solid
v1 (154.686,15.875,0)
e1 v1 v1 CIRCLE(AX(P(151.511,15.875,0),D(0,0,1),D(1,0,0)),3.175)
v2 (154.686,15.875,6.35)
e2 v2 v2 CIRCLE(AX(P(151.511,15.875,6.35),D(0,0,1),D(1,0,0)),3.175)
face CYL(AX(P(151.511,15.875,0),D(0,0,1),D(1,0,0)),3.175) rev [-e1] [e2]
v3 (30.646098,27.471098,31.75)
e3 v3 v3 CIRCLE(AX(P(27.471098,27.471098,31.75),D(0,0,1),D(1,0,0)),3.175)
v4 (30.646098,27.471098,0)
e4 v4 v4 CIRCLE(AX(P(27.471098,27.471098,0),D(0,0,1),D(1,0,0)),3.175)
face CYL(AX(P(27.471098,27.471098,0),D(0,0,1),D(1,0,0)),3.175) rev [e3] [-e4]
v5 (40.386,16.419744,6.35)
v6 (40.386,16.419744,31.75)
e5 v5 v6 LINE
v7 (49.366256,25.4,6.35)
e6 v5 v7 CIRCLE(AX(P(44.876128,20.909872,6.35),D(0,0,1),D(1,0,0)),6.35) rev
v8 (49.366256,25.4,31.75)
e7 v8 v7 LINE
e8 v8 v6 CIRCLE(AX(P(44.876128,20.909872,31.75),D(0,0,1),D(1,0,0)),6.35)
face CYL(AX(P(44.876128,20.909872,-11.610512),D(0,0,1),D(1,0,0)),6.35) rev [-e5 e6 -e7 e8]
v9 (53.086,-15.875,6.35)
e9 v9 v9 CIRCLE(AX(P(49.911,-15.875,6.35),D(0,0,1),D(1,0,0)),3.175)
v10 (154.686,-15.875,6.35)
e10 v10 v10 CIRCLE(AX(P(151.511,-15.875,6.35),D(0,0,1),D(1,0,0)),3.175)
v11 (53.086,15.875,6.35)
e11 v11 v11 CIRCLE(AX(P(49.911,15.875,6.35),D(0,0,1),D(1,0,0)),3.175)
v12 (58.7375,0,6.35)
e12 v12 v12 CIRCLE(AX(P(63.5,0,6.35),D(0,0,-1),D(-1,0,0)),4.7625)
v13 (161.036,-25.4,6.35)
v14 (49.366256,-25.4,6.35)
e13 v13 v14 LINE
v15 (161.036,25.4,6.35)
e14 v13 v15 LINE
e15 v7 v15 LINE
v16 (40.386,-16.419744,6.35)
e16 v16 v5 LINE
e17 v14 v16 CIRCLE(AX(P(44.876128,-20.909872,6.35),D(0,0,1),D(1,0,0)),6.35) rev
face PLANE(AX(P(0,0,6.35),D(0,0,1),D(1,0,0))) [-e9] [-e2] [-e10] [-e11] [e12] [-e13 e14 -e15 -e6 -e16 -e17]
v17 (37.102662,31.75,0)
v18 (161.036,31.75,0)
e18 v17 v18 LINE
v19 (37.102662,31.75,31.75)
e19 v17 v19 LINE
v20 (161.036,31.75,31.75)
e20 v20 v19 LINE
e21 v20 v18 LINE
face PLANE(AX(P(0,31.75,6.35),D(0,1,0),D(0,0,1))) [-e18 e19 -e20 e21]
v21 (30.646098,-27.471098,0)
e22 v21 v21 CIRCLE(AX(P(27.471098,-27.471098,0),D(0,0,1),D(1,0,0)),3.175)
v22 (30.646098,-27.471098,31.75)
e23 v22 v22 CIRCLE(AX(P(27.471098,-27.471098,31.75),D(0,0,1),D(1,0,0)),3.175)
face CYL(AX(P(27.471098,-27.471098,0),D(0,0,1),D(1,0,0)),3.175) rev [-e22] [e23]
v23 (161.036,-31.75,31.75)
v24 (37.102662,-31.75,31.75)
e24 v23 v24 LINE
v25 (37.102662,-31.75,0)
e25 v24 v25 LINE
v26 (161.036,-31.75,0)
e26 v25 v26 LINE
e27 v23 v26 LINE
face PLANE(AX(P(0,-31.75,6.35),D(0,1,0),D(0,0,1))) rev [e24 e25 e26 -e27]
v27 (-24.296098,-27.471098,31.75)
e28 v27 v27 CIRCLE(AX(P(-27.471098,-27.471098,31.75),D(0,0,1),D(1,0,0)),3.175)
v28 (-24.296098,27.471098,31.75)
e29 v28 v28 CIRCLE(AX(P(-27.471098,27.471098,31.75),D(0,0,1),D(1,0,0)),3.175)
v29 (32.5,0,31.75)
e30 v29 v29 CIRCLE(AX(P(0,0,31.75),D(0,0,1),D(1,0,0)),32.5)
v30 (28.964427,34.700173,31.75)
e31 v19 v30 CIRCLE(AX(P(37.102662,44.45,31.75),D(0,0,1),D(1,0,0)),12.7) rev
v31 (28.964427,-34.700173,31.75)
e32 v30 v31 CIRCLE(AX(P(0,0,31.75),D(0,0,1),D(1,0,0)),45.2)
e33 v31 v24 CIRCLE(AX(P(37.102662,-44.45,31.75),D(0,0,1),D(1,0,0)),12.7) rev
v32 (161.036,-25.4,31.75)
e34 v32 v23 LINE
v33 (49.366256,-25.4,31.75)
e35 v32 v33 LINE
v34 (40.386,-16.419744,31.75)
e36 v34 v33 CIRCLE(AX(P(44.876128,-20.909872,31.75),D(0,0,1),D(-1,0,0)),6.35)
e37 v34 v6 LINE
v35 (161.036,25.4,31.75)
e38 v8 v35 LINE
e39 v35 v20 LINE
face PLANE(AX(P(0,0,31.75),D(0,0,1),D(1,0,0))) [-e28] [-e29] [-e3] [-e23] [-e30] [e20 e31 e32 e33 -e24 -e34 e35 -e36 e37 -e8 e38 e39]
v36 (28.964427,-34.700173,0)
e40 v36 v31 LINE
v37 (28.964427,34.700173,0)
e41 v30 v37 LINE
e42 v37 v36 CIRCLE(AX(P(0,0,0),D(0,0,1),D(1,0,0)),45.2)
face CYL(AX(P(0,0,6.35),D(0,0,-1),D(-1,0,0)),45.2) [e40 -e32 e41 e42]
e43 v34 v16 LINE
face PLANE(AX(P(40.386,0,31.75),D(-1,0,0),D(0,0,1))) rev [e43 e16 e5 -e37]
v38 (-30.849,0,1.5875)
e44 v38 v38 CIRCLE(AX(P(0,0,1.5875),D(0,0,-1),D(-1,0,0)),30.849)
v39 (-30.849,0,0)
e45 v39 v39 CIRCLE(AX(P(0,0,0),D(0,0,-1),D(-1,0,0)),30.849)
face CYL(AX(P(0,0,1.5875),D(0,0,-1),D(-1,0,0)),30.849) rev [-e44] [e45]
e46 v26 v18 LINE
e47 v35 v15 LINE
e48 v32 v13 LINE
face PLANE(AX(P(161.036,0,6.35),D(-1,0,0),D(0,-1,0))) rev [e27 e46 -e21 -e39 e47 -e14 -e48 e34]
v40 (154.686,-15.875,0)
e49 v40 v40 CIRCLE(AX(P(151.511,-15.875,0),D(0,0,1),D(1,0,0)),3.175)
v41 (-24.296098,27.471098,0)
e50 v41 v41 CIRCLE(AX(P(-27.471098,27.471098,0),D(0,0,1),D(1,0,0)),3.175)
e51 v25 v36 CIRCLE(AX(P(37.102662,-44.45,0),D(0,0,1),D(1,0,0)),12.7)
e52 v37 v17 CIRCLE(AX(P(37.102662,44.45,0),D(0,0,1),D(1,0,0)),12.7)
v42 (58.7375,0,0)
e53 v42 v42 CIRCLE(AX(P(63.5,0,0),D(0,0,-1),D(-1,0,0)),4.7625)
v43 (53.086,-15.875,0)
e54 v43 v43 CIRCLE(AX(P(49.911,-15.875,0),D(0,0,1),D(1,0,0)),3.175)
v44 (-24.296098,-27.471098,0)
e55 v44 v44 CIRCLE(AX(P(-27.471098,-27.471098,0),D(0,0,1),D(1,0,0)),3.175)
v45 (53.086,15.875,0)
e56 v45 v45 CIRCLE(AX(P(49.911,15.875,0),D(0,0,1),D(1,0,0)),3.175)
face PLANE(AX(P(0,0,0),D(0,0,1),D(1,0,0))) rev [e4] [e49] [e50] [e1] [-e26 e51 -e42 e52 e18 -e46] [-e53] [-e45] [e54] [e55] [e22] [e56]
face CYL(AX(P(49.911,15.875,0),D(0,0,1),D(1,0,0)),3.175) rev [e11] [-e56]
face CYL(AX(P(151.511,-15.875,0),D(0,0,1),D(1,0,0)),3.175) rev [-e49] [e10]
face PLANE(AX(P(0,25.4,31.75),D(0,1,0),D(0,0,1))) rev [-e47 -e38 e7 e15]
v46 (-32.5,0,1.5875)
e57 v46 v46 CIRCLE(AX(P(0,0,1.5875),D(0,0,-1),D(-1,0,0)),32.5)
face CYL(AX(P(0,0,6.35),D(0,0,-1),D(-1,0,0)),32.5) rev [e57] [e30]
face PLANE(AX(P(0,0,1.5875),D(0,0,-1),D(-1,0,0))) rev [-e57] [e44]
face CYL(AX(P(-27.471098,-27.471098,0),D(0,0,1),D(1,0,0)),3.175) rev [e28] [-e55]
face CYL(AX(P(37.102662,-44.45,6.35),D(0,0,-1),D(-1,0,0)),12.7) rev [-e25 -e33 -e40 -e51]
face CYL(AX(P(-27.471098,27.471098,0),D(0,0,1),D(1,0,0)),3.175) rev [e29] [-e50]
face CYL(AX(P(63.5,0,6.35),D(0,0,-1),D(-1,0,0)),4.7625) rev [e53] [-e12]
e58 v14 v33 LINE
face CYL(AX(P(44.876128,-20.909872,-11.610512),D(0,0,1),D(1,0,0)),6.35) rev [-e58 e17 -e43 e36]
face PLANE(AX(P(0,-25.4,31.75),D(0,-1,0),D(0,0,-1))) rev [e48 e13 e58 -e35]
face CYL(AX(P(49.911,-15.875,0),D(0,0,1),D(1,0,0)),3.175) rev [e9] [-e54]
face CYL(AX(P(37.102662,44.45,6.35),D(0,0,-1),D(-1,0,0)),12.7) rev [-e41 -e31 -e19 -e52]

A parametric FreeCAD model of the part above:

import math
import FreeCAD as App
import Part
import Sketcher
Q = App.Units.Quantity


def edges_at(feature, points):
    """Names of the edges that pass closest to the given points."""
    edges = feature.Shape.Edges
    near = lambda p: min(range(len(edges)), key=lambda i: edges[i].distToShape(Part.Vertex(*p))[0])
    return sorted({f"Edge{near(p) + 1}" for p in points})

doc = App.newDocument("Part")
params = doc.addObject("Spreadsheet::Sheet", "Params")
for row, (alias, value) in enumerate([
    ("sketch1_height", "2.5 in"),
    ("pad1_length", "0.25 in"),
    ("sketch2_height", "2 in"),
    ("sketch2_width", "4.75 in"),
    ("sketch2_height2", "0.25 in"),
    ("pad2_length", "1 in"),
    ("sketch3_diameter", "0.25 in"),
    ("sketch4_diameter", "0.5 in"),
    ("pocket2_length", "1 in"),
    ("sketch5_diameter", "0.375 in"),
    ("pocket3_length", "0.25 in"),
    ("fillet_radius", "0.5 in"),
    ("pad3_length", "0.0625 in"),
], start=1):
    params.set(f"A{row}", alias)
    params.set(f"B{row}", "=" + value)
    params.setAlias(f"B{row}", alias)

body = doc.addObject("PartDesign::Body", "Body")

# Sketch on XY plane
sketch1 = doc.addObject("Sketcher::SketchObject", "Sketch")
body.addObject(sketch1)
sketch1.AttachmentSupport = (doc.XY_Plane, [""])
sketch1.MapMode = "FlatFace"
sketch1.addGeometry([
    Part.LineSegment(App.Vector(161, 32, 0), App.Vector(32, 32, 0)),  # 0
    Part.ArcOfCircle(Part.Circle(App.Vector(0, 0, 0), App.Vector(0, 0, 1), 45), math.radians(45), math.radians(315)),  # 1
    Part.LineSegment(App.Vector(32, -32, 0), App.Vector(161, -32, 0)),  # 2
    Part.LineSegment(App.Vector(161, -32, 0), App.Vector(161, 32, 0)),  # 3
    Part.Circle(App.Vector(0, 0, 0), App.Vector(0, 0, 1), 32),  # 4
], False)
sketch1.addConstraint([
    Sketcher.Constraint("Coincident", 0, 2, 1, 1),
    Sketcher.Constraint("Coincident", 1, 2, 2, 1),
    Sketcher.Constraint("Coincident", 2, 2, 3, 1),
    Sketcher.Constraint("Coincident", 3, 2, 0, 1),
    Sketcher.Constraint("Horizontal", 0),
    Sketcher.Constraint("Horizontal", 2),
    Sketcher.Constraint("Vertical", 3),
    Sketcher.Constraint("Coincident", 1, 3, -1, 1),
    Sketcher.Constraint("Coincident", 4, 3, -1, 1),
    Sketcher.Constraint("Vertical", 0, 2, 1, 2),
    Sketcher.Constraint("DistanceY", 3, 1, 3, 2, Q("2.5 in")),
    Sketcher.Constraint("Diameter", 4, Q("65 mm")),
    Sketcher.Constraint("DistanceX", -1, 1, 2, 2, Q("6.34 in")),
    Sketcher.Constraint("Radius", 1, Q("45.2 mm")),
])
sketch1.setExpression("Constraints[10]", "Params.sketch1_height")
pad1 = doc.addObject("PartDesign::Pad", "Pad")
body.addObject(pad1)
pad1.Profile = sketch1
pad1.setExpression("Length", "Params.pad1_length")

# Sketch on XY plane
sketch2 = doc.addObject("Sketcher::SketchObject", "Sketch001")
body.addObject(sketch2)
sketch2.AttachmentSupport = (doc.XY_Plane, [""])
sketch2.MapMode = "FlatFace"
sketch2.AttachmentOffset = App.Placement(App.Vector(0, 0, 0.25 * 25.4), App.Rotation())
sketch2.addGeometry([
    Part.LineSegment(App.Vector(161, 32, 0), App.Vector(32, 32, 0)),  # 0
    Part.ArcOfCircle(Part.Circle(App.Vector(0, 0, 0), App.Vector(0, 0, 1), 45), math.radians(45), math.radians(315)),  # 1
    Part.LineSegment(App.Vector(32, -32, 0), App.Vector(161, -32, 0)),  # 2
    Part.LineSegment(App.Vector(161, -32, 0), App.Vector(161, -25, 0)),  # 3
    Part.LineSegment(App.Vector(161, -25, 0), App.Vector(40, -25, 0)),  # 4
    Part.LineSegment(App.Vector(40, -25, 0), App.Vector(40, 25, 0)),  # 5
    Part.LineSegment(App.Vector(40, 25, 0), App.Vector(161, 25, 0)),  # 6
    Part.LineSegment(App.Vector(161, 25, 0), App.Vector(161, 32, 0)),  # 7
    Part.Circle(App.Vector(0, 0, 0), App.Vector(0, 0, 1), 32),  # 8
], False)
sketch2.addConstraint([
    Sketcher.Constraint("Coincident", 0, 2, 1, 1),
    Sketcher.Constraint("Coincident", 1, 2, 2, 1),
    Sketcher.Constraint("Coincident", 2, 2, 3, 1),
    Sketcher.Constraint("Coincident", 3, 2, 4, 1),
    Sketcher.Constraint("Coincident", 4, 2, 5, 1),
    Sketcher.Constraint("Coincident", 5, 2, 6, 1),
    Sketcher.Constraint("Coincident", 6, 2, 7, 1),
    Sketcher.Constraint("Coincident", 7, 2, 0, 1),
    Sketcher.Constraint("Horizontal", 0),
    Sketcher.Constraint("Horizontal", 2),
    Sketcher.Constraint("Vertical", 3),
    Sketcher.Constraint("Horizontal", 4),
    Sketcher.Constraint("Vertical", 5),
    Sketcher.Constraint("Horizontal", 6),
    Sketcher.Constraint("Vertical", 7),
    Sketcher.Constraint("Coincident", 1, 3, -1, 1),
    Sketcher.Constraint("Coincident", 8, 3, -1, 1),
    Sketcher.Constraint("Symmetric", 3, 2, 6, 2, -1),
    Sketcher.Constraint("Vertical", 0, 2, 1, 2),
    Sketcher.Constraint("DistanceY", 5, 1, 5, 2, Q("2 in")),
    Sketcher.Constraint("DistanceX", 4, 2, 4, 1, Q("4.75 in")),
    Sketcher.Constraint("DistanceY", 3, 1, 3, 2, Q("0.25 in")),
    Sketcher.Constraint("Diameter", 8, Q("65 mm")),
    Sketcher.Constraint("DistanceX", -1, 1, 2, 2, Q("6.34 in")),
    Sketcher.Constraint("Radius", 1, Q("45.2 mm")),
])
sketch2.setExpression("Constraints[19]", "Params.sketch2_height")
sketch2.setExpression("Constraints[20]", "Params.sketch2_width")
sketch2.setExpression("Constraints[21]", "Params.sketch2_height2")
pad2 = doc.addObject("PartDesign::Pad", "Pad001")
body.addObject(pad2)
pad2.Profile = sketch2
pad2.setExpression("Length", "Params.pad2_length")

# Sketch on XY plane
sketch3 = doc.addObject("Sketcher::SketchObject", "Sketch002")
body.addObject(sketch3)
sketch3.AttachmentSupport = (doc.XY_Plane, [""])
sketch3.MapMode = "FlatFace"
sketch3.AttachmentOffset = App.Placement(App.Vector(0, 0, 0.25 * 25.4), App.Rotation())
sketch3.addGeometry([
    Part.Circle(App.Vector(49.9, 15.9, 0), App.Vector(0, 0, 1), 3.2),  # 0
    Part.Circle(App.Vector(151.5, 15.9, 0), App.Vector(0, 0, 1), 3.2),  # 1
    Part.Circle(App.Vector(151.5, -15.9, 0), App.Vector(0, 0, 1), 3.2),  # 2
    Part.Circle(App.Vector(49.9, -15.9, 0), App.Vector(0, 0, 1), 3.2),  # 3
    Part.Circle(App.Vector(27.5, 27.5, 0), App.Vector(0, 0, 1), 3.2),  # 4
    Part.Circle(App.Vector(27.5, -27.5, 0), App.Vector(0, 0, 1), 3.2),  # 5
    Part.Circle(App.Vector(-27.5, -27.5, 0), App.Vector(0, 0, 1), 3.2),  # 6
    Part.Circle(App.Vector(-27.5, 27.5, 0), App.Vector(0, 0, 1), 3.2),  # 7
], False)
sketch3.addConstraint([
    Sketcher.Constraint("Equal", 0, 1),
    Sketcher.Constraint("Equal", 1, 2),
    Sketcher.Constraint("Equal", 2, 3),
    Sketcher.Constraint("Equal", 3, 4),
    Sketcher.Constraint("Equal", 4, 5),
    Sketcher.Constraint("Equal", 5, 6),
    Sketcher.Constraint("Equal", 6, 7),
    Sketcher.Constraint("Symmetric", 4, 3, 6, 3, -1, 1),
    Sketcher.Constraint("Symmetric", 5, 3, 7, 3, -1, 1),
    Sketcher.Constraint("Symmetric", 5, 3, 6, 3, -2),
    Sketcher.Constraint("Symmetric", 1, 3, 2, 3, -1),
    Sketcher.Constraint("Symmetric", 0, 3, 3, 3, -1),
    Sketcher.Constraint("Horizontal", 0, 3, 1, 3),
    Sketcher.Constraint("Diameter", 0, Q("0.25 in")),
    Sketcher.Constraint("DistanceX", 0, 3, 1, 3, Q("4 in")),
    Sketcher.Constraint("DistanceY", 2, 3, 1, 3, Q("1.25 in")),
    Sketcher.Constraint("DistanceX", -1, 1, 0, 3, Q("1.965 in")),
    Sketcher.Constraint("DistanceX", -1, 1, 4, 3, Q("27.471098 mm")),
    Sketcher.Constraint("DistanceY", -1, 1, 4, 3, Q("27.471098 mm")),
])
sketch3.setExpression("Constraints[13]", "Params.sketch3_diameter")
pocket1 = doc.addObject("PartDesign::Pocket", "Pocket")
body.addObject(pocket1)
pocket1.Profile = sketch3
pocket1.Type = "ThroughAll"
pocket1.Midplane = True

# Sketch on XY plane
sketch4 = doc.addObject("Sketcher::SketchObject", "Sketch003")
body.addObject(sketch4)
sketch4.AttachmentSupport = (doc.XY_Plane, [""])
sketch4.MapMode = "FlatFace"
sketch4.AttachmentOffset = App.Placement(App.Vector(0, 0, 1.25 * 25.4), App.Rotation())
sketch4.addGeometry([
    Part.Circle(App.Vector(45, 21, 0), App.Vector(0, 0, 1), 6),
    Part.Circle(App.Vector(45, -21, 0), App.Vector(0, 0, 1), 6),
], False)
sketch4.addConstraint([
    Sketcher.Constraint("Equal", 0, 1),
    Sketcher.Constraint("Symmetric", 0, 3, 1, 3, -1),
    Sketcher.Constraint("Diameter", 0, Q("0.5 in")),
    Sketcher.Constraint("DistanceX", -1, 1, 0, 3, Q("44.876128 mm")),
    Sketcher.Constraint("DistanceY", -1, 1, 0, 3, Q("20.909872 mm")),
])
sketch4.setExpression("Constraints[2]", "Params.sketch4_diameter")
pocket2 = doc.addObject("PartDesign::Pocket", "Pocket001")
body.addObject(pocket2)
pocket2.Profile = sketch4
pocket2.setExpression("Length", "Params.pocket2_length")

# Sketch on XY plane
sketch5 = doc.addObject("Sketcher::SketchObject", "Sketch004")
body.addObject(sketch5)
sketch5.AttachmentSupport = (doc.XY_Plane, [""])
sketch5.MapMode = "FlatFace"
sketch5.addGeometry(Part.Circle(App.Vector(63.5, 0, 0), App.Vector(0, 0, 1), 4.8), False)
sketch5.addConstraint([
    Sketcher.Constraint("PointOnObject", 0, 3, -1),
    Sketcher.Constraint("Diameter", 0, Q("0.375 in")),
    Sketcher.Constraint("DistanceX", -1, 1, 0, 3, Q("2.5 in")),
])
sketch5.setExpression("Constraints[1]", "Params.sketch5_diameter")
pocket3 = doc.addObject("PartDesign::Pocket", "Pocket002")
body.addObject(pocket3)
pocket3.Profile = sketch5
pocket3.setExpression("Length", "Params.pocket3_length")
pocket3.Reversed = True
doc.recompute()

fillet = doc.addObject("PartDesign::Fillet", "Fillet")
body.addObject(fillet)
fillet.Base = (pocket3, edges_at(pocket3, [(32.171, -31.75, 15.875), (32.171, 31.75, 15.875)]))
fillet.setExpression("Radius", "Params.fillet_radius")

# Sketch on XY plane
sketch6 = doc.addObject("Sketcher::SketchObject", "Sketch005")
body.addObject(sketch6)
sketch6.AttachmentSupport = (doc.XY_Plane, [""])
sketch6.MapMode = "FlatFace"
sketch6.addGeometry([
    Part.Circle(App.Vector(0, 0, 0), App.Vector(0, 0, 1), 32),
    Part.Circle(App.Vector(0, 0, 0), App.Vector(0, 0, 1), 31),
], False)
sketch6.addConstraint([
    Sketcher.Constraint("Coincident", 0, 3, -1, 1),
    Sketcher.Constraint("Coincident", 1, 3, -1, 1),
    Sketcher.Constraint("Diameter", 0, Q("65 mm")),
    Sketcher.Constraint("Diameter", 1, Q("61.698 mm")),
])
pad3 = doc.addObject("PartDesign::Pad", "Pad002")
body.addObject(pad3)
pad3.Profile = sketch6
pad3.setExpression("Length", "Params.pad3_length")

doc.recompute()
